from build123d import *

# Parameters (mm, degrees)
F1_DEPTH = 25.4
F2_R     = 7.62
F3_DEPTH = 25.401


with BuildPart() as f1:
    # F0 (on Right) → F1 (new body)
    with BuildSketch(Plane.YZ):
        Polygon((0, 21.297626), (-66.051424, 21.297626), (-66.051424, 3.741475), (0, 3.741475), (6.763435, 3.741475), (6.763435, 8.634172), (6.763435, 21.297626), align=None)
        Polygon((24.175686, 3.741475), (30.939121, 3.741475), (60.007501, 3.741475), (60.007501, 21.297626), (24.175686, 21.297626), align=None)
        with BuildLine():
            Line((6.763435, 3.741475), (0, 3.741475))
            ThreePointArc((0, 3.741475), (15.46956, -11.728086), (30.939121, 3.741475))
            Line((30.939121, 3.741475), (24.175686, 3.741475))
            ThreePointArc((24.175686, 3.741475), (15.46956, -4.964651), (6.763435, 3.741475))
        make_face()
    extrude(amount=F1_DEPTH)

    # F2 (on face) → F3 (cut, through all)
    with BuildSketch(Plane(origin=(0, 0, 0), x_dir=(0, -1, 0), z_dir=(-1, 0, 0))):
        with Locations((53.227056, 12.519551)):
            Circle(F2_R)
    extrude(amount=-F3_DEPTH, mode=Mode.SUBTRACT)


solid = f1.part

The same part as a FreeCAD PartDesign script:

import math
import FreeCAD as App
import Part
import Sketcher

V = App.Vector
Q = App.Units.Quantity

doc = App.newDocument("Part")
body = doc.addObject("PartDesign::Body", "Body")

sketch1 = doc.addObject("Sketcher::SketchObject", "Sketch")
body.addObject(sketch1)
sketch1.AttachmentSupport = (doc.YZ_Plane, [""])
sketch1.MapMode = "FlatFace"
sketch1.addGeometry([
    Part.LineSegment(V(-66, 21, 0), V(-66, 4, 0)),
    Part.LineSegment(V(-66, 4, 0), V(0, 4, 0)),
    Part.ArcOfCircle(Part.Circle(V(15, 4, 0), V(0, 0, 1), 15), math.radians(180), math.radians(360)),
    Part.LineSegment(V(31, 4, 0), V(60, 4, 0)),
    Part.LineSegment(V(60, 4, 0), V(60, 21, 0)),
    Part.LineSegment(V(60, 21, 0), V(24, 21, 0)),
    Part.LineSegment(V(24, 21, 0), V(24, 4, 0)),
    Part.ArcOfCircle(Part.Circle(V(15, 4, 0), V(0, 0, 1), 9), math.radians(180), math.radians(360)),
    Part.LineSegment(V(7, 4, 0), V(7, 21, 0)),
    Part.LineSegment(V(7, 21, 0), V(-66, 21, 0)),
], False)
sketch1.addConstraint([
    Sketcher.Constraint("Coincident", 0, 2, 1, 1),
    Sketcher.Constraint("Coincident", 1, 2, 2, 1),
    Sketcher.Constraint("Coincident", 2, 2, 3, 1),
    Sketcher.Constraint("Coincident", 3, 2, 4, 1),
    Sketcher.Constraint("Coincident", 4, 2, 5, 1),
    Sketcher.Constraint("Coincident", 5, 2, 6, 1),
    Sketcher.Constraint("Tangent", 6, 2, 7, 2),
    Sketcher.Constraint("Tangent", 7, 1, 8, 1),
    Sketcher.Constraint("Coincident", 8, 2, 9, 1),
    Sketcher.Constraint("Coincident", 9, 2, 0, 1),
    Sketcher.Constraint("Vertical", 0),
    Sketcher.Constraint("Horizontal", 1),
    Sketcher.Constraint("Horizontal", 3),
    Sketcher.Constraint("Vertical", 4),
    Sketcher.Constraint("Horizontal", 5),
    Sketcher.Constraint("Vertical", 6),
    Sketcher.Constraint("Vertical", 8),
    Sketcher.Constraint("Horizontal", 9),
    Sketcher.Constraint("Coincident", 7, 3, 2, 3),
    Sketcher.Constraint("PointOnObject", 1, 2, -2),
    Sketcher.Constraint("Horizontal", 7, 3, 0, 2),
    Sketcher.Constraint("Horizontal", 1, 2, 2, 2),
    Sketcher.Constraint("Horizontal", 5, 2, 8, 2),
    Sketcher.Constraint("Radius", 2, Q("15.469561 mm")),
    Sketcher.Constraint("DistanceX", -1, 1, 3, 2, Q("2.3625 in")),
    Sketcher.Constraint("Radius", 7, Q("8.706126 mm")),
    Sketcher.Constraint("DistanceX", 9, 2, 9, 1, Q("72.814859 mm")),
    Sketcher.Constraint("DistanceY", 0, 2, 0, 1, Q("17.556151 mm")),
    Sketcher.Constraint("DistanceY", -1, 1, 2, 3, Q("3.741474 mm")),
])
pad1 = doc.addObject("PartDesign::Pad", "Pad")
body.addObject(pad1)
pad1.Profile = sketch1
pad1.Length = Q("1 in")

sketch2 = doc.addObject("Sketcher::SketchObject", "Sketch001")
body.addObject(sketch2)
sketch2.AttachmentSupport = (doc.YZ_Plane, [""])
sketch2.MapMode = "FlatFace"
sketch2.addGeometry(Part.Circle(V(-53, 13, 0), V(0, 0, 1), 8), False)
sketch2.addConstraint([
    Sketcher.Constraint("Diameter", 0, Q("0.6 in")),
    Sketcher.Constraint("DistanceY", -1, 1, 0, 3, Q("12.519551 mm")),
    Sketcher.Constraint("DistanceX", 0, 3, -1, 1, Q("53.227056 mm")),
])
pocket1 = doc.addObject("PartDesign::Pocket", "Pocket")
body.addObject(pocket1)
pocket1.Profile = sketch2
pocket1.Type = "ThroughAll"
pocket1.Reversed = True

doc.recompute()
